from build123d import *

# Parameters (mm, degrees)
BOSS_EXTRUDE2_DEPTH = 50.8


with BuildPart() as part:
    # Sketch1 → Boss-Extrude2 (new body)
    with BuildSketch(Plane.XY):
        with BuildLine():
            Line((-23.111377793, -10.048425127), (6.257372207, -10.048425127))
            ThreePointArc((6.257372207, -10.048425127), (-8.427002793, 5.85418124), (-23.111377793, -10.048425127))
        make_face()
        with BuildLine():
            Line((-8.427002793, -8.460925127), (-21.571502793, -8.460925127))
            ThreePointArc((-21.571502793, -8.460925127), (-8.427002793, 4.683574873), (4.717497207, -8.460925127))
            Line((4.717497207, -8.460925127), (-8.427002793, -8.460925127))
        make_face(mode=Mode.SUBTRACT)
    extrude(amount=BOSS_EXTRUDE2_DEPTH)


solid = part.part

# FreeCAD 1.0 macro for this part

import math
import FreeCAD as App
import Part
import Sketcher
Q = App.Units.Quantity

doc = App.newDocument("Part")
params = doc.addObject("Spreadsheet::Sheet", "Params")
for row, (alias, value) in enumerate([
    ("sketch1_width", "1.15625 in"),
    ("pad1_length", "2 in"),
], start=1):
    params.set(f"A{row}", alias)
    params.set(f"B{row}", "=" + value)
    params.setAlias(f"B{row}", alias)

body = doc.addObject("PartDesign::Body", "Body")

# Sketch on XY plane
sketch1 = body.newObject("Sketcher::SketchObject", "Sketch")
sketch1.AttachmentSupport = (doc.getObject("XY_Plane"), [""])
sketch1.MapMode = "FlatFace"
sketch1.addGeometry([
    Part.LineSegment(App.Vector(-23, -10, 0), App.Vector(6, -10, 0)),
    Part.ArcOfCircle(Part.Circle(App.Vector(-8, -9, 0), App.Vector(0, 0, 1), 15), math.radians(-5), math.radians(185)),
    Part.LineSegment(App.Vector(5, -8, 0), App.Vector(-22, -8, 0)),
    Part.ArcOfCircle(Part.Circle(App.Vector(-8, -8, 0), App.Vector(0, 0, 1), 13), math.radians(0), math.radians(180)),
], False)
sketch1.addConstraint([
    Sketcher.Constraint("Coincident", 0, 1, 1, 2),
    Sketcher.Constraint("Coincident", 1, 1, 0, 2),
    Sketcher.Constraint("Coincident", 2, 1, 3, 1),
    Sketcher.Constraint("Coincident", 3, 2, 2, 2),
    Sketcher.Constraint("Horizontal", 0),
    Sketcher.Constraint("Horizontal", 2),
    Sketcher.Constraint("Horizontal", 3, 3, 2, 1),
    Sketcher.Constraint("Vertical", 1, 3, 3, 3),
    Sketcher.Constraint("Radius", 3, Q("0.5175 in")),
    Sketcher.Constraint("DistanceX", 0, 1, 0, 2, Q("1.15625 in")),
    Sketcher.Constraint("DistanceY", 0, 1, 3, 3, Q("0.0625 in")),
    Sketcher.Constraint("Radius", 1, Q("14.731037 mm")),
    Sketcher.Constraint("DistanceX", 1, 3, -1, 1, Q("8.427003 mm")),
    Sketcher.Constraint("DistanceY", 1, 3, -1, 1, Q("8.876856 mm")),
])
sketch1.setExpression("Constraints[9]", "Params.sketch1_width")
pad1 = body.newObject("PartDesign::Pad", "Pad")
pad1.Profile = sketch1
pad1.setExpression("Length", "Params.pad1_length")

doc.recompute()
